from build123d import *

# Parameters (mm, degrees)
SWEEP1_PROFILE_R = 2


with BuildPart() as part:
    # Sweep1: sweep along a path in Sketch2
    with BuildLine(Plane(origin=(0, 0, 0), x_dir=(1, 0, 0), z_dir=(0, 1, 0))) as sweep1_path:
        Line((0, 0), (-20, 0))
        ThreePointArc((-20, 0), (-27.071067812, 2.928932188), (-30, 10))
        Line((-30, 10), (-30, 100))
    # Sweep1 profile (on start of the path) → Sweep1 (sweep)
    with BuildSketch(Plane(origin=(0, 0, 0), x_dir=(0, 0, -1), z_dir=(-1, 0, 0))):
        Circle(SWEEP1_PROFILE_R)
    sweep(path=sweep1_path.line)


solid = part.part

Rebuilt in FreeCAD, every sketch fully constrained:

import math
import FreeCAD as App
import Part
import Sketcher

V = App.Vector
Q = App.Units.Quantity

doc = App.newDocument("Part")
body = doc.addObject("PartDesign::Body", "Body")

# Sketch on YZ plane
sketch1 = doc.addObject("Sketcher::SketchObject", "Sketch")
body.addObject(sketch1)
sketch1.AttachmentSupport = (doc.YZ_Plane, [""])
sketch1.MapMode = "FlatFace"
sketch1.addGeometry(Part.Circle(V(0, 0, 0), V(0, 0, 1), 2), False)
sketch1.addConstraint([
    Sketcher.Constraint("Coincident", 0, 3, -1, 1),
    Sketcher.Constraint("Diameter", 0, Q("4 mm")),
])

# Sketch on XZ plane
sketch2 = doc.addObject("Sketcher::SketchObject", "Sketch001")
body.addObject(sketch2)
sketch2.AttachmentSupport = (doc.XZ_Plane, [""])
sketch2.MapMode = "FlatFace"
sketch2.addGeometry([
    Part.LineSegment(V(0, 0, 0), V(-20, 0, 0)),
    Part.ArcOfCircle(Part.Circle(V(-20, -10, 0), V(0, 0, 1), 10), math.radians(90), math.radians(180)),
    Part.LineSegment(V(-30, -10, 0), V(-30, -100, 0)),
], False)
sketch2.addConstraint([
    Sketcher.Constraint("Tangent", 0, 2, 1, 1),
    Sketcher.Constraint("Tangent", 1, 2, 2, 1),
    Sketcher.Constraint("Horizontal", 0),
    Sketcher.Constraint("Vertical", 2),
    Sketcher.Constraint("Coincident", 0, 1, -1, 1),
    Sketcher.Constraint("Radius", 1, Q("10 mm")),
    Sketcher.Constraint("DistanceX", 0, 2, 0, 1, Q("20 mm")),
    Sketcher.Constraint("DistanceY", 2, 2, 2, 1, Q("90 mm")),
])
doc.recompute()

additivepipe = doc.addObject("PartDesign::AdditivePipe", "AdditivePipe")
body.addObject(additivepipe)
additivepipe.Profile = sketch1
additivepipe.Spine = (sketch2, ["Edge1", "Edge2", "Edge3"])

doc.recompute()
